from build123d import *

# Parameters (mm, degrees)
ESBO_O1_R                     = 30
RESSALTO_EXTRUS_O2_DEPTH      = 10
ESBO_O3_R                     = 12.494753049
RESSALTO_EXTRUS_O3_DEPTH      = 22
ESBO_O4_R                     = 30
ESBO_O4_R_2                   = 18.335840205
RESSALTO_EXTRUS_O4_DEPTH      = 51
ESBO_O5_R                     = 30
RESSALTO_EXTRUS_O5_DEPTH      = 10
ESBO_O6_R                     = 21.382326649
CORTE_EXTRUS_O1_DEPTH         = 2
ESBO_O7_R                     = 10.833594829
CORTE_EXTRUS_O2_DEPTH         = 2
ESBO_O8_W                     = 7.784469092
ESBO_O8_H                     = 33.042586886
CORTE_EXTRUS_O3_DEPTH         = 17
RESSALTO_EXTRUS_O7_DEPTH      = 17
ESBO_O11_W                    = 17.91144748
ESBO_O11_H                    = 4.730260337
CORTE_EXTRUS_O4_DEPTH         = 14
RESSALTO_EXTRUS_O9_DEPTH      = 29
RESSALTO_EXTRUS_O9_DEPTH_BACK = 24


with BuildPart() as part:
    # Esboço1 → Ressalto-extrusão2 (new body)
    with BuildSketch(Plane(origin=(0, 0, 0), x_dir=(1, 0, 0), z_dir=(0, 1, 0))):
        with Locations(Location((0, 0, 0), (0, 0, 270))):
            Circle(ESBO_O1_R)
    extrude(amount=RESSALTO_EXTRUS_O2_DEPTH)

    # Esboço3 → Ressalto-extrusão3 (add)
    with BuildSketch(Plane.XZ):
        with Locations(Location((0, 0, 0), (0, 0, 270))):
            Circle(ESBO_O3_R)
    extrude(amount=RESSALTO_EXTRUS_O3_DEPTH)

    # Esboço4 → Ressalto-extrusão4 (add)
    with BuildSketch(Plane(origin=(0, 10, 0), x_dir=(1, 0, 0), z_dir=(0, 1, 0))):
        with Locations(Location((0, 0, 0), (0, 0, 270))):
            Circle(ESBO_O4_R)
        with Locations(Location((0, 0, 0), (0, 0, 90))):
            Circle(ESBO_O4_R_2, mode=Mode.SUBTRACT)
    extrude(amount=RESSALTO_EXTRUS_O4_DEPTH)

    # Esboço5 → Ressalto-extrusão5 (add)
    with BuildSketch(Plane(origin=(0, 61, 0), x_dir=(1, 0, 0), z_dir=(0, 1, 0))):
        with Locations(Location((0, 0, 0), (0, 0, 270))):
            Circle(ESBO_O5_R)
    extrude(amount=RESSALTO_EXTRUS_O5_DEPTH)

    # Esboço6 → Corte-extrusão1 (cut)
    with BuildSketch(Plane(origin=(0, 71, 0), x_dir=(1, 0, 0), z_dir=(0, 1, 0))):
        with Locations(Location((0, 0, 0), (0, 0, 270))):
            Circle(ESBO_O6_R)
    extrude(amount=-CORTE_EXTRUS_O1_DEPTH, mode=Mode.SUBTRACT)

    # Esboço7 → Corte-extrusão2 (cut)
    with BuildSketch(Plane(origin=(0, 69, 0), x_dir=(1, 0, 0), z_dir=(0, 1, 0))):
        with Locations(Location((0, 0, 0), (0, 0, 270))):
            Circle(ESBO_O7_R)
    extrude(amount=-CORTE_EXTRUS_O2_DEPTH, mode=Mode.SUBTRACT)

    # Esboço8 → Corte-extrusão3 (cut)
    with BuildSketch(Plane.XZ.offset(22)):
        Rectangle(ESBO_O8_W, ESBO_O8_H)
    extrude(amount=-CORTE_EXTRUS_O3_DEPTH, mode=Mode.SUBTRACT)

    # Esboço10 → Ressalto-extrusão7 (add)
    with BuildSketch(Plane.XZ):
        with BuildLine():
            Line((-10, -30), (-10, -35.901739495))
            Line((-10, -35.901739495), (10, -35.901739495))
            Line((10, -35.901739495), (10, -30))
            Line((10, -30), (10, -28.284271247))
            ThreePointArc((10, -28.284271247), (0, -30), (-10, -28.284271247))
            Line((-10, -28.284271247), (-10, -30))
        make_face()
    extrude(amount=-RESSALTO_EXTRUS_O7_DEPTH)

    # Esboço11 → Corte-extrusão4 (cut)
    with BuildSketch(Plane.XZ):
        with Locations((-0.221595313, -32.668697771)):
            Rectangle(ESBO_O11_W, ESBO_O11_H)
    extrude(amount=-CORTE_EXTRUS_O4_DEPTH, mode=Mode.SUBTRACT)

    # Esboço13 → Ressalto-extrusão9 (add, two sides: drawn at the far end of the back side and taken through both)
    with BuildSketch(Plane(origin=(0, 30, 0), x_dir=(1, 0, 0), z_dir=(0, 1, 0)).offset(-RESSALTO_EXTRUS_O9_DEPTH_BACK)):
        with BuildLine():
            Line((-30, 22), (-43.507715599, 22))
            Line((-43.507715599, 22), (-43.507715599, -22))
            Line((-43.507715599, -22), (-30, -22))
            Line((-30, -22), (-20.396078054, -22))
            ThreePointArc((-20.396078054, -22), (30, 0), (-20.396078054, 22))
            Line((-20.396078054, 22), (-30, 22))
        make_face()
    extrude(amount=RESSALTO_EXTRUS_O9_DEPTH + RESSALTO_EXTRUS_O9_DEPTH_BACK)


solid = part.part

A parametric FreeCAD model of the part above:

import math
import FreeCAD as App
import Part
import Sketcher
Q = App.Units.Quantity

doc = App.newDocument("Part")
body = doc.addObject("PartDesign::Body", "Body")

sketch1 = body.newObject("Sketcher::SketchObject", "Sketch")
sketch1.AttachmentSupport = (doc.getObject("XZ_Plane"), [""])
sketch1.MapMode = "FlatFace"
sketch1.addGeometry(Part.Circle(App.Vector(0, 0, 0), App.Vector(0, 0, 1), 30), False)
sketch1.addConstraint(Sketcher.Constraint("Coincident", 0, 3, -1, 1))
sketch1.addConstraint(Sketcher.Constraint("Diameter", 0, Q("60 mm")))
pad1 = body.newObject("PartDesign::Pad", "Pad")
pad1.Profile = sketch1
pad1.Length = 10
pad1.Reversed = True

sketch2 = body.newObject("Sketcher::SketchObject", "Sketch001")
sketch2.AttachmentSupport = (doc.getObject("XZ_Plane"), [""])
sketch2.MapMode = "FlatFace"
sketch2.addGeometry(Part.Circle(App.Vector(0, 0, 0), App.Vector(0, 0, 1), 12), False)
sketch2.addConstraint(Sketcher.Constraint("Coincident", 0, 3, -1, 1))
sketch2.addConstraint(Sketcher.Constraint("Diameter", 0, Q("24.989506 mm")))
pad2 = body.newObject("PartDesign::Pad", "Pad001")
pad2.Profile = sketch2
pad2.Length = 22

sketch3 = body.newObject("Sketcher::SketchObject", "Sketch002")
sketch3.AttachmentSupport = (doc.getObject("XZ_Plane"), [""])
sketch3.MapMode = "FlatFace"
sketch3.AttachmentOffset = App.Placement(App.Vector(0, 0, -10), App.Rotation())
sketch3.addGeometry(Part.Circle(App.Vector(0, 0, 0), App.Vector(0, 0, 1), 30), False)
sketch3.addGeometry(Part.Circle(App.Vector(0, 0, 0), App.Vector(0, 0, 1), 18), False)
sketch3.addConstraint(Sketcher.Constraint("Coincident", 0, 3, -1, 1))
sketch3.addConstraint(Sketcher.Constraint("Coincident", 1, 3, -1, 1))
sketch3.addConstraint(Sketcher.Constraint("Diameter", 0, Q("60 mm")))
sketch3.addConstraint(Sketcher.Constraint("Diameter", 1, Q("36.67168 mm")))
pad3 = body.newObject("PartDesign::Pad", "Pad002")
pad3.Profile = sketch3
pad3.Length = 51
pad3.Reversed = True

sketch4 = body.newObject("Sketcher::SketchObject", "Sketch003")
sketch4.AttachmentSupport = (doc.getObject("XZ_Plane"), [""])
sketch4.MapMode = "FlatFace"
sketch4.AttachmentOffset = App.Placement(App.Vector(0, 0, -61), App.Rotation())
sketch4.addGeometry(Part.Circle(App.Vector(0, 0, 0), App.Vector(0, 0, 1), 30), False)
sketch4.addConstraint(Sketcher.Constraint("Coincident", 0, 3, -1, 1))
sketch4.addConstraint(Sketcher.Constraint("Diameter", 0, Q("60 mm")))
pad4 = body.newObject("PartDesign::Pad", "Pad003")
pad4.Profile = sketch4
pad4.Length = 10
pad4.Reversed = True

sketch5 = body.newObject("Sketcher::SketchObject", "Sketch004")
sketch5.AttachmentSupport = (doc.getObject("XZ_Plane"), [""])
sketch5.MapMode = "FlatFace"
sketch5.AttachmentOffset = App.Placement(App.Vector(0, 0, -71), App.Rotation())
sketch5.addGeometry(Part.Circle(App.Vector(0, 0, 0), App.Vector(0, 0, 1), 21), False)
sketch5.addConstraint(Sketcher.Constraint("Coincident", 0, 3, -1, 1))
sketch5.addConstraint(Sketcher.Constraint("Diameter", 0, Q("42.764653 mm")))
pocket1 = body.newObject("PartDesign::Pocket", "Pocket")
pocket1.Profile = sketch5
pocket1.Length = 2
pocket1.Reversed = True

sketch6 = body.newObject("Sketcher::SketchObject", "Sketch005")
sketch6.AttachmentSupport = (doc.getObject("XZ_Plane"), [""])
sketch6.MapMode = "FlatFace"
sketch6.AttachmentOffset = App.Placement(App.Vector(0, 0, -69), App.Rotation())
sketch6.addGeometry(Part.Circle(App.Vector(0, 0, 0), App.Vector(0, 0, 1), 11), False)
sketch6.addConstraint(Sketcher.Constraint("Coincident", 0, 3, -1, 1))
sketch6.addConstraint(Sketcher.Constraint("Diameter", 0, Q("21.66719 mm")))
pocket2 = body.newObject("PartDesign::Pocket", "Pocket001")
pocket2.Profile = sketch6
pocket2.Length = 2
pocket2.Reversed = True

sketch7 = body.newObject("Sketcher::SketchObject", "Sketch006")
sketch7.AttachmentSupport = (doc.getObject("XZ_Plane"), [""])
sketch7.MapMode = "FlatFace"
sketch7.AttachmentOffset = App.Placement(App.Vector(0, 0, 22), App.Rotation())
sketch7.addGeometry(Part.LineSegment(App.Vector(-4, 17, 0), App.Vector(-4, -17, 0)), False)
sketch7.addGeometry(Part.LineSegment(App.Vector(-4, -17, 0), App.Vector(4, -17, 0)), False)
sketch7.addGeometry(Part.LineSegment(App.Vector(4, -17, 0), App.Vector(4, 17, 0)), False)
sketch7.addGeometry(Part.LineSegment(App.Vector(4, 17, 0), App.Vector(-4, 17, 0)), False)
sketch7.addConstraint(Sketcher.Constraint("Coincident", 0, 2, 1, 1))
sketch7.addConstraint(Sketcher.Constraint("Coincident", 1, 2, 2, 1))
sketch7.addConstraint(Sketcher.Constraint("Coincident", 2, 2, 3, 1))
sketch7.addConstraint(Sketcher.Constraint("Coincident", 3, 2, 0, 1))
sketch7.addConstraint(Sketcher.Constraint("Vertical", 0))
sketch7.addConstraint(Sketcher.Constraint("Horizontal", 1))
sketch7.addConstraint(Sketcher.Constraint("Vertical", 2))
sketch7.addConstraint(Sketcher.Constraint("Horizontal", 3))
sketch7.addConstraint(Sketcher.Constraint("Symmetric", 0, 2, 2, 2, -1, 1))
sketch7.addConstraint(Sketcher.Constraint("DistanceX", 1, 1, 1, 2, Q("7.784469 mm")))
sketch7.addConstraint(Sketcher.Constraint("DistanceY", 0, 2, 0, 1, Q("33.042587 mm")))
pocket3 = body.newObject("PartDesign::Pocket", "Pocket002")
pocket3.Profile = sketch7
pocket3.Length = 17

sketch8 = body.newObject("Sketcher::SketchObject", "Sketch007")
sketch8.AttachmentSupport = (doc.getObject("XZ_Plane"), [""])
sketch8.MapMode = "FlatFace"
sketch8.addGeometry(Part.LineSegment(App.Vector(-10, -36, 0), App.Vector(10, -36, 0)), False)
sketch8.addGeometry(Part.LineSegment(App.Vector(10, -36, 0), App.Vector(10, -28, 0)), False)
sketch8.addGeometry(Part.ArcOfCircle(Part.Circle(App.Vector(0, 0, 0), App.Vector(0, 0, 1), 30), math.radians(-109), math.radians(-71)), False)
sketch8.addGeometry(Part.LineSegment(App.Vector(-10, -28, 0), App.Vector(-10, -36, 0)), False)
sketch8.addConstraint(Sketcher.Constraint("Coincident", 0, 2, 1, 1))
sketch8.addConstraint(Sketcher.Constraint("Coincident", 1, 2, 2, 2))
sketch8.addConstraint(Sketcher.Constraint("Coincident", 2, 1, 3, 1))
sketch8.addConstraint(Sketcher.Constraint("Coincident", 3, 2, 0, 1))
sketch8.addConstraint(Sketcher.Constraint("Horizontal", 0))
sketch8.addConstraint(Sketcher.Constraint("Vertical", 1))
sketch8.addConstraint(Sketcher.Constraint("Vertical", 3))
sketch8.addConstraint(Sketcher.Constraint("Coincident", 2, 3, -1, 1))
sketch8.addConstraint(Sketcher.Constraint("Horizontal", 1, 2, 2, 1))
sketch8.addConstraint(Sketcher.Constraint("Radius", 2, Q("30 mm")))
sketch8.addConstraint(Sketcher.Constraint("DistanceX", 0, 1, 0, 2, Q("20 mm")))
sketch8.addConstraint(Sketcher.Constraint("DistanceY", 1, 1, 1, 2, Q("7.617468 mm")))
pad5 = body.newObject("PartDesign::Pad", "Pad004")
pad5.Profile = sketch8
pad5.Length = 17
pad5.Reversed = True

sketch9 = body.newObject("Sketcher::SketchObject", "Sketch008")
sketch9.AttachmentSupport = (doc.getObject("XZ_Plane"), [""])
sketch9.MapMode = "FlatFace"
sketch9.addGeometry(Part.LineSegment(App.Vector(-9.2, -30.3, 0), App.Vector(-9.2, -35, 0)), False)
sketch9.addGeometry(Part.LineSegment(App.Vector(-9.2, -35, 0), App.Vector(8.7, -35, 0)), False)
sketch9.addGeometry(Part.LineSegment(App.Vector(8.7, -35, 0), App.Vector(8.7, -30.3, 0)), False)
sketch9.addGeometry(Part.LineSegment(App.Vector(8.7, -30.3, 0), App.Vector(-9.2, -30.3, 0)), False)
sketch9.addConstraint(Sketcher.Constraint("Coincident", 0, 2, 1, 1))
sketch9.addConstraint(Sketcher.Constraint("Coincident", 1, 2, 2, 1))
sketch9.addConstraint(Sketcher.Constraint("Coincident", 2, 2, 3, 1))
sketch9.addConstraint(Sketcher.Constraint("Coincident", 3, 2, 0, 1))
sketch9.addConstraint(Sketcher.Constraint("Vertical", 0))
sketch9.addConstraint(Sketcher.Constraint("Horizontal", 1))
sketch9.addConstraint(Sketcher.Constraint("Vertical", 2))
sketch9.addConstraint(Sketcher.Constraint("Horizontal", 3))
sketch9.addConstraint(Sketcher.Constraint("DistanceY", 0, 2, 0, 1, Q("4.73026 mm")))
sketch9.addConstraint(Sketcher.Constraint("DistanceX", 1, 1, 1, 2, Q("17.911447 mm")))
sketch9.addConstraint(Sketcher.Constraint("DistanceX", 0, 2, -1, 1, Q("9.177319 mm")))
sketch9.addConstraint(Sketcher.Constraint("DistanceY", 0, 2, -1, 1, Q("35.033828 mm")))
pocket4 = body.newObject("PartDesign::Pocket", "Pocket003")
pocket4.Profile = sketch9
pocket4.Length = 14

sketch10 = body.newObject("Sketcher::SketchObject", "Sketch009")
sketch10.AttachmentSupport = (doc.getObject("XZ_Plane"), [""])
sketch10.MapMode = "FlatFace"
sketch10.AttachmentOffset = App.Placement(App.Vector(0, 0, -30), App.Rotation())
sketch10.addGeometry(Part.LineSegment(App.Vector(-44, -22, 0), App.Vector(-44, 22, 0)), False)
sketch10.addGeometry(Part.LineSegment(App.Vector(-44, 22, 0), App.Vector(-20, 22, 0)), False)
sketch10.addGeometry(Part.ArcOfCircle(Part.Circle(App.Vector(0, 0, 0), App.Vector(0, 0, 1), 30), math.radians(-133), math.radians(133)), False)
sketch10.addGeometry(Part.LineSegment(App.Vector(-20, -22, 0), App.Vector(-44, -22, 0)), False)
sketch10.addConstraint(Sketcher.Constraint("Coincident", 0, 2, 1, 1))
sketch10.addConstraint(Sketcher.Constraint("Coincident", 1, 2, 2, 2))
sketch10.addConstraint(Sketcher.Constraint("Coincident", 2, 1, 3, 1))
sketch10.addConstraint(Sketcher.Constraint("Coincident", 3, 2, 0, 1))
sketch10.addConstraint(Sketcher.Constraint("Vertical", 0))
sketch10.addConstraint(Sketcher.Constraint("Horizontal", 1))
sketch10.addConstraint(Sketcher.Constraint("Horizontal", 3))
sketch10.addConstraint(Sketcher.Constraint("Coincident", 2, 3, -1, 1))
sketch10.addConstraint(Sketcher.Constraint("Vertical", 1, 2, 2, 1))
sketch10.addConstraint(Sketcher.Constraint("Radius", 2, Q("30 mm")))
sketch10.addConstraint(Sketcher.Constraint("DistanceY", 0, 1, 0, 2, Q("44 mm")))
sketch10.addConstraint(Sketcher.Constraint("DistanceX", 1, 1, 1, 2, Q("23.111638 mm")))
pad6 = body.newObject("PartDesign::Pad", "Pad005")
pad6.Profile = sketch10
pad6.Type = "TwoLengths"
pad6.Length = 29
pad6.Length2 = 24
pad6.Reversed = True

doc.recompute()
